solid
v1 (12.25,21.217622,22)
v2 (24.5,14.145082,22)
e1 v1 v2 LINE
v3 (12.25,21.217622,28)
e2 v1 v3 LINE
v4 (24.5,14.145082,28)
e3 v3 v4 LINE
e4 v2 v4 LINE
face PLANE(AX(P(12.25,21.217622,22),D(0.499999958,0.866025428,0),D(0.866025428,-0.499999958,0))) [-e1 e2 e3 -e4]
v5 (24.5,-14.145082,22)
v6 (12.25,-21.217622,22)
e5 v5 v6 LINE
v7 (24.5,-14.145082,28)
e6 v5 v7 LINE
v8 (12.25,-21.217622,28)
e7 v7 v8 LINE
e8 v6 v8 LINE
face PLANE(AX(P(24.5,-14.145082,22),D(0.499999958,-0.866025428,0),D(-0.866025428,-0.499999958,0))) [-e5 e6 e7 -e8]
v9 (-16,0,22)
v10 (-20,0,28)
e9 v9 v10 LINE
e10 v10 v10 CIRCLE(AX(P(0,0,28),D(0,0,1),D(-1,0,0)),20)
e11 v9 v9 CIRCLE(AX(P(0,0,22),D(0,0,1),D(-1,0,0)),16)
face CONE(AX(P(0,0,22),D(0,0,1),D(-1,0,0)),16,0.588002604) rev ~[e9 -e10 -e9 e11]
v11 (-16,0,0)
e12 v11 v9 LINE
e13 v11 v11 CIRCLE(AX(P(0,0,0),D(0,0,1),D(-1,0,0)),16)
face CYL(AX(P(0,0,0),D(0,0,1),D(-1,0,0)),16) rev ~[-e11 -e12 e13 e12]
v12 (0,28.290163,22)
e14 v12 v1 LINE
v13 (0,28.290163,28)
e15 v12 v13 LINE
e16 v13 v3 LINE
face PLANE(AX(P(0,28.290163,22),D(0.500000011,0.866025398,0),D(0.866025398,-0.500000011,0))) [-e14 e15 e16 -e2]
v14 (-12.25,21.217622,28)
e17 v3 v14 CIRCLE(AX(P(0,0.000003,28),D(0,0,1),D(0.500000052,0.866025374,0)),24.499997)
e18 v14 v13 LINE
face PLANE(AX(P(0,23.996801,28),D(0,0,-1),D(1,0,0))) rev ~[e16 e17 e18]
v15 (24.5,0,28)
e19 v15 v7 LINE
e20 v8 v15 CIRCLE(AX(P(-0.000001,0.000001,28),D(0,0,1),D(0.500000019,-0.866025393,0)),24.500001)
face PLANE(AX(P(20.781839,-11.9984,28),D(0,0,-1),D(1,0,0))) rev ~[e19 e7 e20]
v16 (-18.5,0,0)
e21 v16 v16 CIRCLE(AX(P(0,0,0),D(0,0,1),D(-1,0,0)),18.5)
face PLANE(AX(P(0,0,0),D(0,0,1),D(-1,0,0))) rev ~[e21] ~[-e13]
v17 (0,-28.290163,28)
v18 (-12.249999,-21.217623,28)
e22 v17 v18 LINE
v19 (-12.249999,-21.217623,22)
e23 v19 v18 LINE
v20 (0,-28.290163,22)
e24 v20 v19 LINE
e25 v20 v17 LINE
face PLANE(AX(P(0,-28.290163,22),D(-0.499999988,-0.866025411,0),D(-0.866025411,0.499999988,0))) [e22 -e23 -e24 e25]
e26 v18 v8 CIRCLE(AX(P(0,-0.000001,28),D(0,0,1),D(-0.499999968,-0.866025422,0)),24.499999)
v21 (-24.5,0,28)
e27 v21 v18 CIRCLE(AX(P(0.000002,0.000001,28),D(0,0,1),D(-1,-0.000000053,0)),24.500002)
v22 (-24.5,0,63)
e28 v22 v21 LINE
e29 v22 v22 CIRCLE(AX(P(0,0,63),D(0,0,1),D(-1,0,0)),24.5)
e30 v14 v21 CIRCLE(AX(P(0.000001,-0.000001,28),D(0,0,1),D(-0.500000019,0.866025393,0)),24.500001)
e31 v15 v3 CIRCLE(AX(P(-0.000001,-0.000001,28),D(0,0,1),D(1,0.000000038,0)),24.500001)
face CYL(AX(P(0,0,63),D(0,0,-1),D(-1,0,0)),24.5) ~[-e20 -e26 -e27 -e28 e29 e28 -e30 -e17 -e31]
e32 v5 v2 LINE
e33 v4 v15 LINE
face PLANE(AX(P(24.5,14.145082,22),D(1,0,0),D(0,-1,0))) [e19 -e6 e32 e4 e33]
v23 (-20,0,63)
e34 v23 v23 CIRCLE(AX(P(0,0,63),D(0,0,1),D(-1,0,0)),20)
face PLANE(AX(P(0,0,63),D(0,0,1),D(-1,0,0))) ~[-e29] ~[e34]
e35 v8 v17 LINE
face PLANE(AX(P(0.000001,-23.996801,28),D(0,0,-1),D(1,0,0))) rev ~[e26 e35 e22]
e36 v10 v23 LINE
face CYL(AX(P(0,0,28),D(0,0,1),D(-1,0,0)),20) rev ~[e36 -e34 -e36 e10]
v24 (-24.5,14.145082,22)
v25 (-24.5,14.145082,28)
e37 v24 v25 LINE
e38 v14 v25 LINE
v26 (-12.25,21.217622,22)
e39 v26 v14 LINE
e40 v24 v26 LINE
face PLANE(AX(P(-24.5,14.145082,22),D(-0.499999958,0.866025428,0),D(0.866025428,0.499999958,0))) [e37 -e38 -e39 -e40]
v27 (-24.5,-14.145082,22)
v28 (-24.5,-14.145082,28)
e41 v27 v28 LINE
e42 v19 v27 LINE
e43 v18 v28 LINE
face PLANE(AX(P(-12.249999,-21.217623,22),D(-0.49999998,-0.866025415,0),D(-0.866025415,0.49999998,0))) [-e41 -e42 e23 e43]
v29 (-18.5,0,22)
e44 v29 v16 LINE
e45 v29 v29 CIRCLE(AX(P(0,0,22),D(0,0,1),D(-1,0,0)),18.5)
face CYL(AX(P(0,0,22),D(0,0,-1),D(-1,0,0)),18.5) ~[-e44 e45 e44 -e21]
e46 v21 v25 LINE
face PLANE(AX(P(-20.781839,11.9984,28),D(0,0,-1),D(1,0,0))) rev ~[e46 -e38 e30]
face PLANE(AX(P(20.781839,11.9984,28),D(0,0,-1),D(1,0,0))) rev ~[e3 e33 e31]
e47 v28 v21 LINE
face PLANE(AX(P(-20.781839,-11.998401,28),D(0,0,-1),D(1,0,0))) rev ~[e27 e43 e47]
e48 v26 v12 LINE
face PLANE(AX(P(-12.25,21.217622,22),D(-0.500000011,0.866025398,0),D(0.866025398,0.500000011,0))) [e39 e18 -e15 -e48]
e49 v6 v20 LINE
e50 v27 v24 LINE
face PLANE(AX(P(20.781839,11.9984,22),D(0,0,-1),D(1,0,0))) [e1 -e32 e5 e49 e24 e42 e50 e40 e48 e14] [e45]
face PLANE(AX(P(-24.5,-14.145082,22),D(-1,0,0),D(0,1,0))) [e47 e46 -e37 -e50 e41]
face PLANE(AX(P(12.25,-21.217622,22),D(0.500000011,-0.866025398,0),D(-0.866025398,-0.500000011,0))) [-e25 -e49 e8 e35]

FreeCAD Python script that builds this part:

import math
import FreeCAD as App
import Part
import Sketcher


def add_polygon(sketch, points):
    """Adds a closed chain of lines whose ends are joined by coincident constraints."""
    first, n = sketch.GeometryCount, len(points)
    for a, b in zip(points, points[1:] + points[:1]):
        sketch.addGeometry(Part.LineSegment(App.Vector(*a, 0), App.Vector(*b, 0)), False)
    for i in range(n):
        sketch.addConstraint(Sketcher.Constraint("Coincident", first + i, 2, first + (i + 1) % n, 1))

doc = App.newDocument("Part")
body = doc.addObject("PartDesign::Body", "Body")

sketch1 = body.newObject("Sketcher::SketchObject", "Sketch")
sketch1.AttachmentSupport = (doc.getObject("XZ_Plane"), [""])
sketch1.MapMode = "FlatFace"
add_polygon(sketch1, [(-18.5, 0), (-16, 0), (-16, 22), (-20, 28), (-20, 63), (-24.5, 63), (-24.5, 22), (-18.5, 22)])
sketch1.addConstraint(Sketcher.Constraint("Horizontal", 0))
sketch1.addConstraint(Sketcher.Constraint("Vertical", 1))
sketch1.addConstraint(Sketcher.Constraint("Vertical", 3))
sketch1.addConstraint(Sketcher.Constraint("Horizontal", 4))
sketch1.addConstraint(Sketcher.Constraint("Vertical", 5))
sketch1.addConstraint(Sketcher.Constraint("Horizontal", 6))
sketch1.addConstraint(Sketcher.Constraint("Vertical", 7))
sketch1.addConstraint(Sketcher.Constraint("PointOnObject", 0, 2, -1))
sketch1.addConstraint(Sketcher.Constraint("Horizontal", 1, 2, 5, 2))
sketch1.addConstraint(Sketcher.Constraint("DistanceX", 6, 1, 6, 2, 6.0))
sketch1.addConstraint(Sketcher.Constraint("DistanceY", 1, 1, 1, 2, 22.0))
sketch1.addConstraint(Sketcher.Constraint("DistanceY", 3, 1, 3, 2, 35.0))
sketch1.addConstraint(Sketcher.Constraint("DistanceY", 5, 2, 5, 1, 41.0))
sketch1.addConstraint(Sketcher.Constraint("DistanceX", 0, 1, 0, 2, 2.5))
sketch1.addConstraint(Sketcher.Constraint("DistanceX", 4, 2, 4, 1, 4.5))
sketch1.addConstraint(Sketcher.Constraint("DistanceX", 0, 2, -1, 1, 16.0))
revolution = body.newObject("PartDesign::Revolution", "Revolution")
revolution.Profile = sketch1
revolution.ReferenceAxis = (sketch1, ["V_Axis"])
revolution.Angle = 360

sketch2 = body.newObject("Sketcher::SketchObject", "Sketch001")
sketch2.AttachmentSupport = (doc.getObject("XY_Plane"), [""])
sketch2.MapMode = "FlatFace"
sketch2.AttachmentOffset = App.Placement(App.Vector(0, 0, 22), App.Rotation())
sketch2.addGeometry(Part.LineSegment(App.Vector(24, 14, 0), App.Vector(24, 0, 0)), False)
sketch2.addGeometry(Part.ArcOfCircle(Part.Circle(App.Vector(0, 0, 0), App.Vector(0, 0, 1), 25), math.radians(0), math.radians(60)), False)
sketch2.addGeometry(Part.LineSegment(App.Vector(12, 21, 0), App.Vector(24, 14, 0)), False)
sketch2.addGeometry(Part.ArcOfCircle(Part.Circle(App.Vector(0, 0, 0), App.Vector(0, 0, 1), 25), math.radians(-60), math.radians(0)), False)
sketch2.addGeometry(Part.LineSegment(App.Vector(24, 0, 0), App.Vector(24, -14, 0)), False)
sketch2.addGeometry(Part.LineSegment(App.Vector(24, -14, 0), App.Vector(12, -21, 0)), False)
sketch2.addGeometry(Part.ArcOfCircle(Part.Circle(App.Vector(0, 0, 0), App.Vector(0, 0, 1), 24), math.radians(-120), math.radians(-60)), False)
sketch2.addGeometry(Part.LineSegment(App.Vector(12, -21, 0), App.Vector(0, -28, 0)), False)
sketch2.addGeometry(Part.LineSegment(App.Vector(0, -28, 0), App.Vector(-12, -21, 0)), False)
sketch2.addGeometry(Part.LineSegment(App.Vector(0, 28, 0), App.Vector(12, 21, 0)), False)
sketch2.addGeometry(Part.ArcOfCircle(Part.Circle(App.Vector(0, 0, 0), App.Vector(0, 0, 1), 24), math.radians(60), math.radians(120)), False)
sketch2.addGeometry(Part.LineSegment(App.Vector(-12, 21, 0), App.Vector(0, 28, 0)), False)
sketch2.addGeometry(Part.ArcOfCircle(Part.Circle(App.Vector(0, 0, 0), App.Vector(0, 0, 1), 25), math.radians(-180), math.radians(-120)), False)
sketch2.addGeometry(Part.LineSegment(App.Vector(-12, -21, 0), App.Vector(-24, -14, 0)), False)
sketch2.addGeometry(Part.LineSegment(App.Vector(-24, -14, 0), App.Vector(-24, 0, 0)), False)
sketch2.addGeometry(Part.LineSegment(App.Vector(-24, 14, 0), App.Vector(-12, 21, 0)), False)
sketch2.addGeometry(Part.ArcOfCircle(Part.Circle(App.Vector(0, 0, 0), App.Vector(0, 0, 1), 25), math.radians(120), math.radians(180)), False)
sketch2.addGeometry(Part.LineSegment(App.Vector(-24, 0, 0), App.Vector(-24, 14, 0)), False)
sketch2.addConstraint(Sketcher.Constraint("Tangent", 0, 2, 1, 1))
sketch2.addConstraint(Sketcher.Constraint("Tangent", 1, 2, 2, 1))
sketch2.addConstraint(Sketcher.Constraint("Coincident", 2, 2, 0, 1))
sketch2.addConstraint(Sketcher.Constraint("Tangent", 3, 2, 4, 1))
sketch2.addConstraint(Sketcher.Constraint("Coincident", 4, 2, 5, 1))
sketch2.addConstraint(Sketcher.Constraint("Tangent", 5, 2, 3, 1))
sketch2.addConstraint(Sketcher.Constraint("Tangent", 6, 2, 7, 1))
sketch2.addConstraint(Sketcher.Constraint("Coincident", 7, 2, 8, 1))
sketch2.addConstraint(Sketcher.Constraint("Tangent", 8, 2, 6, 1))
sketch2.addConstraint(Sketcher.Constraint("Tangent", 9, 2, 10, 1))
sketch2.addConstraint(Sketcher.Constraint("Tangent", 10, 2, 11, 1))
sketch2.addConstraint(Sketcher.Constraint("Coincident", 11, 2, 9, 1))
sketch2.addConstraint(Sketcher.Constraint("Tangent", 12, 2, 13, 1))
sketch2.addConstraint(Sketcher.Constraint("Coincident", 13, 2, 14, 1))
sketch2.addConstraint(Sketcher.Constraint("Tangent", 14, 2, 12, 1))
sketch2.addConstraint(Sketcher.Constraint("Tangent", 15, 2, 16, 1))
sketch2.addConstraint(Sketcher.Constraint("Tangent", 16, 2, 17, 1))
sketch2.addConstraint(Sketcher.Constraint("Coincident", 17, 2, 15, 1))
sketch2.addConstraint(Sketcher.Constraint("Vertical", 0))
sketch2.addConstraint(Sketcher.Constraint("Vertical", 4))
sketch2.addConstraint(Sketcher.Constraint("Vertical", 14))
sketch2.addConstraint(Sketcher.Constraint("Vertical", 17))
sketch2.addConstraint(Sketcher.Constraint("Coincident", 1, 3, -1, 1))
sketch2.addConstraint(Sketcher.Constraint("Coincident", 3, 3, -1, 1))
sketch2.addConstraint(Sketcher.Constraint("Coincident", 6, 3, -1, 1))
sketch2.addConstraint(Sketcher.Constraint("Coincident", 10, 3, -1, 1))
sketch2.addConstraint(Sketcher.Constraint("Coincident", 12, 3, -1, 1))
sketch2.addConstraint(Sketcher.Constraint("Coincident", 16, 3, -1, 1))
sketch2.addConstraint(Sketcher.Constraint("Coincident", 6, 2, 5, 2))
sketch2.addConstraint(Sketcher.Constraint("Coincident", 9, 2, 1, 2))
sketch2.addConstraint(Sketcher.Constraint("Coincident", 12, 2, 8, 2))
sketch2.addConstraint(Sketcher.Constraint("Coincident", 15, 2, 10, 2))
sketch2.addConstraint(Sketcher.Constraint("Equal", 1, 3))
sketch2.addConstraint(Sketcher.Constraint("Symmetric", 7, 2, 11, 2, -1, 1))
sketch2.addConstraint(Sketcher.Constraint("PointOnObject", 7, 2, -2))
sketch2.addConstraint(Sketcher.Constraint("Equal", 5, 7))
sketch2.addConstraint(Sketcher.Constraint("Radius", 1, 24.500001))
pad1 = body.newObject("PartDesign::Pad", "Pad")
pad1.Profile = sketch2
pad1.Length = 6

sketch3 = body.newObject("Sketcher::SketchObject", "Sketch002")
sketch3.AttachmentSupport = (doc.getObject("XZ_Plane"), [""])
sketch3.MapMode = "FlatFace"
add_polygon(sketch3, [(-20, 28), (-16, 22), (0, 22), (0, 28)])
sketch3.addConstraint(Sketcher.Constraint("Horizontal", 1))
sketch3.addConstraint(Sketcher.Constraint("Vertical", 2))
sketch3.addConstraint(Sketcher.Constraint("Horizontal", 3))
sketch3.addConstraint(Sketcher.Constraint("PointOnObject", 1, 2, -2))
sketch3.addConstraint(Sketcher.Constraint("DistanceX", 1, 1, 1, 2, 16.0))
sketch3.addConstraint(Sketcher.Constraint("DistanceX", 3, 2, 3, 1, 20.0))
sketch3.addConstraint(Sketcher.Constraint("DistanceY", 2, 1, 2, 2, 6.0))
sketch3.addConstraint(Sketcher.Constraint("DistanceY", -1, 1, 0, 2, 22.0))
groove = body.newObject("PartDesign::Groove", "Groove")
groove.Profile = sketch3
groove.ReferenceAxis = (sketch3, ["V_Axis"])
groove.Angle = 360

doc.recompute()
